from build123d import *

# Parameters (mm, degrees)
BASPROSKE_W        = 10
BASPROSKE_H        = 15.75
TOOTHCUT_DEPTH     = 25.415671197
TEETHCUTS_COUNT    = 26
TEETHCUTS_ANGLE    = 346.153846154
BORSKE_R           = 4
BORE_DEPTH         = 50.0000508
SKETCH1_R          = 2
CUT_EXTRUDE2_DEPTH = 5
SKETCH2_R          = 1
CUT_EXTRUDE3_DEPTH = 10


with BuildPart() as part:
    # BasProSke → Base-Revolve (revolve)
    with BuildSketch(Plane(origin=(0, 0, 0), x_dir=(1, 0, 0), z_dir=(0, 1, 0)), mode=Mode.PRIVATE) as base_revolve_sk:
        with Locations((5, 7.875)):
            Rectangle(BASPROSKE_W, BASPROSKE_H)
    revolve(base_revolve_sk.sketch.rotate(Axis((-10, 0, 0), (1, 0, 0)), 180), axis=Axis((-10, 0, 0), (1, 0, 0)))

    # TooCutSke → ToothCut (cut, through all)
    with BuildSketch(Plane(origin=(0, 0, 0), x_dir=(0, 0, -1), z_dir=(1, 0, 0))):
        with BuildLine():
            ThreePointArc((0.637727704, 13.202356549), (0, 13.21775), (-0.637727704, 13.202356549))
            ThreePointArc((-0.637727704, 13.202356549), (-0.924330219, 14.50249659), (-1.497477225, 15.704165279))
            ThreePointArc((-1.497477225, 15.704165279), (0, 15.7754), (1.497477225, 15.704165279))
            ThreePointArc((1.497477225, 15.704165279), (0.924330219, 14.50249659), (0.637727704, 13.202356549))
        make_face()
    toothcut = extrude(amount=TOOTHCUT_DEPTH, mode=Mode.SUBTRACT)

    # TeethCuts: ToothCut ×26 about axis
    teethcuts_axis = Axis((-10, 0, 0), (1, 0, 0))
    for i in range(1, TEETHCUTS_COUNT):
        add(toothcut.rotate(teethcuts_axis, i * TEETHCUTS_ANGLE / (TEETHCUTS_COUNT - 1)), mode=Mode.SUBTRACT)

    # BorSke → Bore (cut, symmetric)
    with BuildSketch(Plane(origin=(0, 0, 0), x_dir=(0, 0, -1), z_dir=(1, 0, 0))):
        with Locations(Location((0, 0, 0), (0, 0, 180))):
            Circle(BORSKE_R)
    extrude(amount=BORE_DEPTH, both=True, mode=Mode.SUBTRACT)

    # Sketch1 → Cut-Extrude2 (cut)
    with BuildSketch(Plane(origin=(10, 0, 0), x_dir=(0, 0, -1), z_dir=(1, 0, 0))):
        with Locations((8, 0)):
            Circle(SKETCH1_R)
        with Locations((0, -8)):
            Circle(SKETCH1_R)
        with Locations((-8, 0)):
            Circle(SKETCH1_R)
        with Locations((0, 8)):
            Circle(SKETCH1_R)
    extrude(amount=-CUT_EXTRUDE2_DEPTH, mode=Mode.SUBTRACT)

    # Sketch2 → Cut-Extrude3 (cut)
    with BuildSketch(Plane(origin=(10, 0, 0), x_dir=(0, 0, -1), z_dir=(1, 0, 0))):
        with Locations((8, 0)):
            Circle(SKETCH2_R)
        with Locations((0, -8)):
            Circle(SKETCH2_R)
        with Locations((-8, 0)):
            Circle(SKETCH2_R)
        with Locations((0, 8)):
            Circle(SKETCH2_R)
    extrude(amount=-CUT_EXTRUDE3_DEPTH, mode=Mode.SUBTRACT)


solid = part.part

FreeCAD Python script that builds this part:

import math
import FreeCAD as App
import Part
import Sketcher


def add_polygon(sketch, points):
    """Adds a closed chain of lines whose ends are joined by coincident constraints."""
    first, n = sketch.GeometryCount, len(points)
    for a, b in zip(points, points[1:] + points[:1]):
        sketch.addGeometry(Part.LineSegment(App.Vector(*a, 0), App.Vector(*b, 0)), False)
    for i in range(n):
        sketch.addConstraint(Sketcher.Constraint("Coincident", first + i, 2, first + (i + 1) % n, 1))

doc = App.newDocument("Part")
body = doc.addObject("PartDesign::Body", "Body")

sketch1 = body.newObject("Sketcher::SketchObject", "Sketch")
sketch1.AttachmentSupport = (doc.getObject("XZ_Plane"), [""])
sketch1.MapMode = "FlatFace"
add_polygon(sketch1, [(0, -16), (0, 0), (10, 0), (10, -16)])
sketch1.addConstraint(Sketcher.Constraint("Vertical", 0))
sketch1.addConstraint(Sketcher.Constraint("Horizontal", 1))
sketch1.addConstraint(Sketcher.Constraint("Vertical", 2))
sketch1.addConstraint(Sketcher.Constraint("Horizontal", 3))
sketch1.addConstraint(Sketcher.Constraint("Coincident", 0, 2, -1, 1))
sketch1.addConstraint(Sketcher.Constraint("DistanceX", 1, 1, 1, 2, 10.0))
sketch1.addConstraint(Sketcher.Constraint("DistanceY", 0, 1, 0, 2, 15.75))
revolution = body.newObject("PartDesign::Revolution", "Revolution")
revolution.Profile = sketch1
revolution.ReferenceAxis = (sketch1, ["H_Axis"])
revolution.Angle = 360

sketch2 = body.newObject("Sketcher::SketchObject", "Sketch001")
sketch2.AttachmentSupport = (doc.getObject("YZ_Plane"), [""])
sketch2.MapMode = "FlatFace"
sketch2.addGeometry(Part.ArcOfCircle(Part.Circle(App.Vector(0, 0, 0), App.Vector(0, 0, 1), 13.2), math.radians(-2.77), math.radians(2.77)), False)
sketch2.addGeometry(Part.ArcOfCircle(Part.Circle(App.Vector(12.6, -6.5, 0), App.Vector(0, 0, 1), 5.8), math.radians(58), math.radians(84)), False)
sketch2.addGeometry(Part.ArcOfCircle(Part.Circle(App.Vector(0, 0, 0), App.Vector(0, 0, 1), 15.8), math.radians(-5.45), math.radians(5.45)), False)
sketch2.addGeometry(Part.ArcOfCircle(Part.Circle(App.Vector(12.6, 6.5, 0), App.Vector(0, 0, 1), 5.8), math.radians(-84), math.radians(-58)), False)
sketch2.addConstraint(Sketcher.Constraint("Coincident", 0, 1, 1, 2))
sketch2.addConstraint(Sketcher.Constraint("Coincident", 1, 1, 2, 1))
sketch2.addConstraint(Sketcher.Constraint("Coincident", 2, 2, 3, 2))
sketch2.addConstraint(Sketcher.Constraint("Coincident", 3, 1, 0, 2))
sketch2.addConstraint(Sketcher.Constraint("Coincident", 0, 3, -1, 1))
sketch2.addConstraint(Sketcher.Constraint("Coincident", 2, 3, -1, 1))
sketch2.addConstraint(Sketcher.Constraint("Equal", 1, 3))
sketch2.addConstraint(Sketcher.Constraint("Symmetric", 1, 3, 3, 3, -1))
sketch2.addConstraint(Sketcher.Constraint("Radius", 1, 5.85))
sketch2.addConstraint(Sketcher.Constraint("Radius", 2, 15.7754))
sketch2.addConstraint(Sketcher.Constraint("Radius", 0, 13.21775))
sketch2.addConstraint(Sketcher.Constraint("DistanceX", -1, 1, 1, 3, 12.601269))
sketch2.addConstraint(Sketcher.Constraint("DistanceY", 1, 3, 3, 3, 12.91353))
pocket1 = body.newObject("PartDesign::Pocket", "Pocket")
pocket1.Profile = sketch2
pocket1.Type = "ThroughAll"
pocket1.Reversed = True
doc.recompute()

polarpattern = body.newObject("PartDesign::PolarPattern", "PolarPattern")
polarpattern.Originals = [pocket1]
polarpattern.Axis = (doc.getObject("X_Axis"), [""])
polarpattern.Angle = 360
polarpattern.Occurrences = 26
body.Tip = polarpattern

sketch3 = body.newObject("Sketcher::SketchObject", "Sketch002")
sketch3.AttachmentSupport = (doc.getObject("YZ_Plane"), [""])
sketch3.MapMode = "FlatFace"
sketch3.addGeometry(Part.Circle(App.Vector(0, 0, 0), App.Vector(0, 0, 1), 4), False)
sketch3.addConstraint(Sketcher.Constraint("Coincident", 0, 3, -1, 1))
sketch3.addConstraint(Sketcher.Constraint("Diameter", 0, 8.0))
pocket2 = body.newObject("PartDesign::Pocket", "Pocket001")
pocket2.Profile = sketch3
pocket2.Length = 100.000102
pocket2.Midplane = True

sketch4 = body.newObject("Sketcher::SketchObject", "Sketch003")
sketch4.AttachmentSupport = (doc.getObject("YZ_Plane"), [""])
sketch4.MapMode = "FlatFace"
sketch4.AttachmentOffset = App.Placement(App.Vector(0, 0, 10), App.Rotation())
sketch4.addGeometry(Part.Circle(App.Vector(0, -8, 0), App.Vector(0, 0, 1), 2), False)
sketch4.addGeometry(Part.Circle(App.Vector(-8, 0, 0), App.Vector(0, 0, 1), 2), False)
sketch4.addGeometry(Part.Circle(App.Vector(0, 8, 0), App.Vector(0, 0, 1), 2), False)
sketch4.addGeometry(Part.Circle(App.Vector(8, 0, 0), App.Vector(0, 0, 1), 2), False)
sketch4.addConstraint(Sketcher.Constraint("Equal", 0, 1))
sketch4.addConstraint(Sketcher.Constraint("Equal", 1, 2))
sketch4.addConstraint(Sketcher.Constraint("Equal", 2, 3))
sketch4.addConstraint(Sketcher.Constraint("Symmetric", 0, 3, 2, 3, -1, 1))
sketch4.addConstraint(Sketcher.Constraint("Symmetric", 1, 3, 3, 3, -1, 1))
sketch4.addConstraint(Sketcher.Constraint("PointOnObject", 0, 3, -2))
sketch4.addConstraint(Sketcher.Constraint("PointOnObject", 1, 3, -1))
sketch4.addConstraint(Sketcher.Constraint("Diameter", 0, 4.0))
sketch4.addConstraint(Sketcher.Constraint("DistanceY", 0, 3, -1, 1, 8.0))
sketch4.addConstraint(Sketcher.Constraint("DistanceX", 1, 3, -1, 1, 8.0))
pocket3 = body.newObject("PartDesign::Pocket", "Pocket002")
pocket3.Profile = sketch4
pocket3.Length = 5

sketch5 = body.newObject("Sketcher::SketchObject", "Sketch004")
sketch5.AttachmentSupport = (doc.getObject("YZ_Plane"), [""])
sketch5.MapMode = "FlatFace"
sketch5.AttachmentOffset = App.Placement(App.Vector(0, 0, 10), App.Rotation())
sketch5.addGeometry(Part.Circle(App.Vector(0, -8, 0), App.Vector(0, 0, 1), 1), False)
sketch5.addGeometry(Part.Circle(App.Vector(-8, 0, 0), App.Vector(0, 0, 1), 1), False)
sketch5.addGeometry(Part.Circle(App.Vector(0, 8, 0), App.Vector(0, 0, 1), 1), False)
sketch5.addGeometry(Part.Circle(App.Vector(8, 0, 0), App.Vector(0, 0, 1), 1), False)
sketch5.addConstraint(Sketcher.Constraint("Equal", 0, 1))
sketch5.addConstraint(Sketcher.Constraint("Equal", 1, 2))
sketch5.addConstraint(Sketcher.Constraint("Equal", 2, 3))
sketch5.addConstraint(Sketcher.Constraint("Symmetric", 0, 3, 2, 3, -1, 1))
sketch5.addConstraint(Sketcher.Constraint("Symmetric", 1, 3, 3, 3, -1, 1))
sketch5.addConstraint(Sketcher.Constraint("PointOnObject", 0, 3, -2))
sketch5.addConstraint(Sketcher.Constraint("PointOnObject", 1, 3, -1))
sketch5.addConstraint(Sketcher.Constraint("Diameter", 0, 2.0))
sketch5.addConstraint(Sketcher.Constraint("DistanceY", 0, 3, -1, 1, 8.0))
sketch5.addConstraint(Sketcher.Constraint("DistanceX", 1, 3, -1, 1, 8.0))
pocket4 = body.newObject("PartDesign::Pocket", "Pocket003")
pocket4.Profile = sketch5
pocket4.Length = 10

doc.recompute()
